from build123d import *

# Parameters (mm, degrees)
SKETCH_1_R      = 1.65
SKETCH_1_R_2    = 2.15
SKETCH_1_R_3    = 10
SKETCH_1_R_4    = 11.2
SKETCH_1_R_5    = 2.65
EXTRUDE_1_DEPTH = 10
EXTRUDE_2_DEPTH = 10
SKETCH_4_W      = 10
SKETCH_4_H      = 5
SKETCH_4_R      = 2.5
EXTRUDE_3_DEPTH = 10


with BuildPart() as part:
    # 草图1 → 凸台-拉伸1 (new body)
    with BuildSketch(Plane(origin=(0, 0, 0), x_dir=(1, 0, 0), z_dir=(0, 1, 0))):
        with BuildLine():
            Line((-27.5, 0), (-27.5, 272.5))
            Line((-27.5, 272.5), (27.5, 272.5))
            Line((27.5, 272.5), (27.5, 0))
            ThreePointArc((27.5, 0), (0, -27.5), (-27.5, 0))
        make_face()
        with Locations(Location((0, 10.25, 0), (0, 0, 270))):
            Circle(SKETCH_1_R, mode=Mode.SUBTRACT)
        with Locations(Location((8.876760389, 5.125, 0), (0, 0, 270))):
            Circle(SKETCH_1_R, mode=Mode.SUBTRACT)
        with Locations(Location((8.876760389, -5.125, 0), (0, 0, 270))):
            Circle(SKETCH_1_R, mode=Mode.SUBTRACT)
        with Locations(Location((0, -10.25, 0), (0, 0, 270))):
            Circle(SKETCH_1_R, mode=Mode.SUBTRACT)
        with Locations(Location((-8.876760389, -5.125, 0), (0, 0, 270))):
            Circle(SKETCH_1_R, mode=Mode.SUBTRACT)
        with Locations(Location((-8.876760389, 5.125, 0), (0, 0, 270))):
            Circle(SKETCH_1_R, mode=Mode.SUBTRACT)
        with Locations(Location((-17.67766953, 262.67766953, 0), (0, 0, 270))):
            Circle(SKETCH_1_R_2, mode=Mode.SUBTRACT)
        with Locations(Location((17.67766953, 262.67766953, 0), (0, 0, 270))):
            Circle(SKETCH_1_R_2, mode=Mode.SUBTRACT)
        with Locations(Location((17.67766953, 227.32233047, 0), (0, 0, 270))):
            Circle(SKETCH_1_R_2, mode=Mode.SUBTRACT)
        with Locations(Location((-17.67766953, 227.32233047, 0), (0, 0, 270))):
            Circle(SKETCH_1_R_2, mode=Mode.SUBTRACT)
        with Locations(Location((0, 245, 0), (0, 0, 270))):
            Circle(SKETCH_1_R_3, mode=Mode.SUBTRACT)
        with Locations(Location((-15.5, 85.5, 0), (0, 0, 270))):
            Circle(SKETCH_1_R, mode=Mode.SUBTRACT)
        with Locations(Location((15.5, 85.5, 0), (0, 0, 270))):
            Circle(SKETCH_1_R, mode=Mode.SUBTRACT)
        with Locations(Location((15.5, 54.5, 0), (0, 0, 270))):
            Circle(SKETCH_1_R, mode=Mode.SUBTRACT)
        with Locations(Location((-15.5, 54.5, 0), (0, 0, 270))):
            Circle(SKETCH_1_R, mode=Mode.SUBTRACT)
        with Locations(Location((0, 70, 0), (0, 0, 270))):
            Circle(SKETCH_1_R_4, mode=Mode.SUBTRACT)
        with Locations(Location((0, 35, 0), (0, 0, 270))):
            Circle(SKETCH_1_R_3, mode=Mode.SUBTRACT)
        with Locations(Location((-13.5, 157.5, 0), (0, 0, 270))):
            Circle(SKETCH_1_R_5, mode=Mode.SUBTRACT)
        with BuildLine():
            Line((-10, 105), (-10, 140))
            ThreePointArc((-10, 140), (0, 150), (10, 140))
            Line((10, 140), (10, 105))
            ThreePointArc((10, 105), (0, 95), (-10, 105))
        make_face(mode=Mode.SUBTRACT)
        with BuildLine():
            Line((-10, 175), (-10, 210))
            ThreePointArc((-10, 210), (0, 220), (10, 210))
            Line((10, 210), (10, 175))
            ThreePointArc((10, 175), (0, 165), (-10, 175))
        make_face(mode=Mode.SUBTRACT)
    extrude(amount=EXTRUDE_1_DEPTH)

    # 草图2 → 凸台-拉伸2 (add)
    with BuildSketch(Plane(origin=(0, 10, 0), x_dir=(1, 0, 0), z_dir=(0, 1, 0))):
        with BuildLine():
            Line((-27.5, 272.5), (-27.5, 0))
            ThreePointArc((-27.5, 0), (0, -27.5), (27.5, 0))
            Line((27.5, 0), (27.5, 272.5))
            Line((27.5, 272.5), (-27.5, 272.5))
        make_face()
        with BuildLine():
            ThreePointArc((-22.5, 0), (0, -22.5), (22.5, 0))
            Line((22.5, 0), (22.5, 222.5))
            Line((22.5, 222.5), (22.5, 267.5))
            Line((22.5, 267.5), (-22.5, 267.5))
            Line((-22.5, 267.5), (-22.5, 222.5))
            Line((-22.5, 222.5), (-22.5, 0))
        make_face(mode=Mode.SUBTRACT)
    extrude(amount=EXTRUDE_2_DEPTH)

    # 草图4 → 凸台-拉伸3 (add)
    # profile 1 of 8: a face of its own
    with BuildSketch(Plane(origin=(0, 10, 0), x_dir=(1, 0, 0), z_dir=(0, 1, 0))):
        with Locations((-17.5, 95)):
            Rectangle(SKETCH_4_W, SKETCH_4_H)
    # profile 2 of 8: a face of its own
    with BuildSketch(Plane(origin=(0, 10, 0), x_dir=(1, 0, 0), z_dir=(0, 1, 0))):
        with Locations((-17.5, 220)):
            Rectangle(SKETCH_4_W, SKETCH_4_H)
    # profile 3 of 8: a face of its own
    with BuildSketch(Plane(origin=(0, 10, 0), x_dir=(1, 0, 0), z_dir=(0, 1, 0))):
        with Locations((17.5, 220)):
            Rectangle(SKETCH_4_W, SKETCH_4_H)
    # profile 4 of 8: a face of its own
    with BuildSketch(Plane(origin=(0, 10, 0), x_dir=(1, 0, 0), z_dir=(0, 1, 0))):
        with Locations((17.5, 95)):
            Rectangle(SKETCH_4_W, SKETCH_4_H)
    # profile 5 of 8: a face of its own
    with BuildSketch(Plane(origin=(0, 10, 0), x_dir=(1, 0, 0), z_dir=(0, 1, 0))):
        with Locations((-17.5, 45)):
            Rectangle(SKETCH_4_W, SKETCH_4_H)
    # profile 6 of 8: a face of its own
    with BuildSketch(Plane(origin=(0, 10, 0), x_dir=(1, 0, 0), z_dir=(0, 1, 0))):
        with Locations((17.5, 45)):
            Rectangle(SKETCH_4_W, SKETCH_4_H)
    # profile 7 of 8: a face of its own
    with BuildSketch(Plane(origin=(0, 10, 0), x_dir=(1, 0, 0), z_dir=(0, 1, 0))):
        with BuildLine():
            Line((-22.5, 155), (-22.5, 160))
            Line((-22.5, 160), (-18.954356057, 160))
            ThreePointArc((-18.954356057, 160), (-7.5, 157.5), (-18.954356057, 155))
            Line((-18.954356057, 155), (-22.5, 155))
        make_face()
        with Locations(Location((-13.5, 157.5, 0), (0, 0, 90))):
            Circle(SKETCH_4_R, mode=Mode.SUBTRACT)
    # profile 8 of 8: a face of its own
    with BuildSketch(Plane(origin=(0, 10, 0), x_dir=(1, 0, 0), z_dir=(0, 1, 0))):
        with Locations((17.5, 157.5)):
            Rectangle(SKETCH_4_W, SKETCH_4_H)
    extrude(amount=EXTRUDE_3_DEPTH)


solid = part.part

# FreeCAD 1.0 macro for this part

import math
import FreeCAD as App
import Part
import Sketcher

V = App.Vector
Q = App.Units.Quantity


def add_polygon(sketch, points):
    """Adds a closed chain of lines whose ends are joined by coincident constraints."""
    first, n = sketch.GeometryCount, len(points)
    for a, b in zip(points, points[1:] + points[:1]):
        sketch.addGeometry(Part.LineSegment(App.Vector(*a, 0), App.Vector(*b, 0)), False)
    for i in range(n):
        sketch.addConstraint(Sketcher.Constraint("Coincident", first + i, 2, first + (i + 1) % n, 1))

doc = App.newDocument("Part")
body = doc.addObject("PartDesign::Body", "Body")

# Sketch on XZ plane
sketch1 = body.newObject("Sketcher::SketchObject", "Sketch")
sketch1.AttachmentSupport = (doc.getObject("XZ_Plane"), [""])
sketch1.MapMode = "FlatFace"
sketch1.addGeometry([
    Part.LineSegment(V(-27.5, -272.5, 0), V(-27.5, 0, 0)),  # 0
    Part.ArcOfCircle(Part.Circle(V(0, 0, 0), V(0, 0, 1), 27.5), math.radians(0), math.radians(180)),  # 1
    Part.LineSegment(V(27.5, 0, 0), V(27.5, -272.5, 0)),  # 2
    Part.LineSegment(V(27.5, -272.5, 0), V(-27.5, -272.5, 0)),  # 3
    Part.Circle(V(15.5, -54.5, 0), V(0, 0, 1), 1.6),  # 4
    Part.Circle(V(8.9, 5.1, 0), V(0, 0, 1), 1.6),  # 5
    Part.Circle(V(8.9, -5.1, 0), V(0, 0, 1), 1.6),  # 6
    Part.Circle(V(15.5, -85.5, 0), V(0, 0, 1), 1.6),  # 7
    Part.Circle(V(0, 10.2, 0), V(0, 0, 1), 1.6),  # 8
    Part.Circle(V(0, -10.2, 0), V(0, 0, 1), 1.6),  # 9
    Part.Circle(V(-8.9, 5.1, 0), V(0, 0, 1), 1.6),  # 10
    Part.Circle(V(-8.9, -5.1, 0), V(0, 0, 1), 1.6),  # 11
    Part.Circle(V(0, -35, 0), V(0, 0, 1), 10),  # 12
    Part.Circle(V(-15.5, -54.5, 0), V(0, 0, 1), 1.6),  # 13
    Part.Circle(V(0, -70, 0), V(0, 0, 1), 11.2),  # 14
    Part.LineSegment(V(-10, -105, 0), V(-10, -140, 0)),  # 15
    Part.ArcOfCircle(Part.Circle(V(0, -140, 0), V(0, 0, 1), 10), math.radians(180), math.radians(360)),  # 16
    Part.LineSegment(V(10, -140, 0), V(10, -105, 0)),  # 17
    Part.ArcOfCircle(Part.Circle(V(0, -105, 0), V(0, 0, 1), 10), math.radians(0), math.radians(180)),  # 18
    Part.Circle(V(-15.5, -85.5, 0), V(0, 0, 1), 1.6),  # 19
    Part.Circle(V(17.7, -227.3, 0), V(0, 0, 1), 2.1),  # 20
    Part.Circle(V(17.7, -262.7, 0), V(0, 0, 1), 2.1),  # 21
    Part.LineSegment(V(-10, -175, 0), V(-10, -210, 0)),  # 22
    Part.ArcOfCircle(Part.Circle(V(0, -210, 0), V(0, 0, 1), 10), math.radians(180), math.radians(360)),  # 23
    Part.LineSegment(V(10, -210, 0), V(10, -175, 0)),  # 24
    Part.ArcOfCircle(Part.Circle(V(0, -175, 0), V(0, 0, 1), 10), math.radians(0), math.radians(180)),  # 25
    Part.Circle(V(-13.5, -157.5, 0), V(0, 0, 1), 2.6),  # 26
    Part.Circle(V(0, -245, 0), V(0, 0, 1), 10),  # 27
    Part.Circle(V(-17.7, -227.3, 0), V(0, 0, 1), 2.1),  # 28
    Part.Circle(V(-17.7, -262.7, 0), V(0, 0, 1), 2.1),  # 29
], False)
sketch1.addConstraint([
    Sketcher.Constraint("Tangent", 0, 2, 1, 2),
    Sketcher.Constraint("Tangent", 1, 1, 2, 1),
    Sketcher.Constraint("Coincident", 2, 2, 3, 1),
    Sketcher.Constraint("Coincident", 3, 2, 0, 1),
    Sketcher.Constraint("Tangent", 15, 2, 16, 1),
    Sketcher.Constraint("Tangent", 16, 2, 17, 1),
    Sketcher.Constraint("Tangent", 17, 2, 18, 1),
    Sketcher.Constraint("Tangent", 18, 2, 15, 1),
    Sketcher.Constraint("Tangent", 22, 2, 23, 1),
    Sketcher.Constraint("Tangent", 23, 2, 24, 1),
    Sketcher.Constraint("Tangent", 24, 2, 25, 1),
    Sketcher.Constraint("Tangent", 25, 2, 22, 1),
    Sketcher.Constraint("Vertical", 0),
    Sketcher.Constraint("Vertical", 2),
    Sketcher.Constraint("Horizontal", 3),
    Sketcher.Constraint("Vertical", 15),
    Sketcher.Constraint("Vertical", 17),
    Sketcher.Constraint("Vertical", 22),
    Sketcher.Constraint("Vertical", 24),
    Sketcher.Constraint("Coincident", 1, 3, -1, 1),
    Sketcher.Constraint("Equal", 4, 5),
    Sketcher.Constraint("Equal", 5, 6),
    Sketcher.Constraint("Equal", 6, 7),
    Sketcher.Constraint("Equal", 7, 8),
    Sketcher.Constraint("Equal", 8, 9),
    Sketcher.Constraint("Equal", 9, 10),
    Sketcher.Constraint("Equal", 10, 11),
    Sketcher.Constraint("Equal", 11, 13),
    Sketcher.Constraint("Equal", 12, 16),
    Sketcher.Constraint("Equal", 13, 19),
    Sketcher.Constraint("Equal", 20, 21),
    Sketcher.Constraint("Equal", 18, 23),
    Sketcher.Constraint("Equal", 25, 27),
    Sketcher.Constraint("Equal", 21, 28),
    Sketcher.Constraint("Equal", 28, 29),
    Sketcher.Constraint("Symmetric", 8, 3, 9, 3, -1, 1),
    Sketcher.Constraint("Symmetric", 6, 3, 10, 3, -1, 1),
    Sketcher.Constraint("Symmetric", 5, 3, 11, 3, -1, 1),
    Sketcher.Constraint("Symmetric", 5, 3, 10, 3, -2),
    Sketcher.Constraint("Symmetric", 4, 3, 13, 3, -2),
    Sketcher.Constraint("Symmetric", 7, 3, 19, 3, -2),
    Sketcher.Constraint("Symmetric", 20, 3, 28, 3, -2),
    Sketcher.Constraint("Symmetric", 21, 3, 29, 3, -2),
    Sketcher.Constraint("PointOnObject", 8, 3, -2),
    Sketcher.Constraint("PointOnObject", 12, 3, -2),
    Sketcher.Constraint("PointOnObject", 14, 3, -2),
    Sketcher.Constraint("PointOnObject", 16, 3, -2),
    Sketcher.Constraint("PointOnObject", 23, 3, -2),
    Sketcher.Constraint("PointOnObject", 27, 3, -2),
    Sketcher.Constraint("Vertical", 4, 3, 7, 3),
    Sketcher.Constraint("Vertical", 20, 3, 21, 3),
    Sketcher.Constraint("Equal", 17, 22),
    Sketcher.Constraint("Diameter", 12, Q("20 mm")),
    Sketcher.Constraint("Diameter", 4, Q("3.3 mm")),
    Sketcher.Constraint("Diameter", 14, Q("22.4 mm")),
    Sketcher.Constraint("Diameter", 20, Q("4.3 mm")),
    Sketcher.Constraint("Diameter", 26, Q("5.3 mm")),
    Sketcher.Constraint("Radius", 1, Q("27.5 mm")),
    Sketcher.Constraint("DistanceY", 15, 2, 15, 1, Q("35 mm")),
    Sketcher.Constraint("DistanceY", 0, 1, 0, 2, Q("272.5 mm")),
    Sketcher.Constraint("DistanceY", 12, 3, -1, 1, Q("35 mm")),
    Sketcher.Constraint("DistanceY", 14, 3, -1, 1, Q("70 mm")),
    Sketcher.Constraint("DistanceY", 16, 3, -1, 1, Q("140 mm")),
    Sketcher.Constraint("DistanceY", 23, 3, -1, 1, Q("210 mm")),
    Sketcher.Constraint("DistanceY", 27, 3, -1, 1, Q("245 mm")),
    Sketcher.Constraint("DistanceY", 7, 3, 4, 3, Q("31 mm")),
    Sketcher.Constraint("DistanceX", 13, 3, 4, 3, Q("31 mm")),
    Sketcher.Constraint("DistanceX", 19, 3, 26, 3, Q("2 mm")),
    Sketcher.Constraint("DistanceY", 26, 3, 19, 3, Q("72 mm")),
    Sketcher.Constraint("DistanceY", 4, 3, -1, 1, Q("54.5 mm")),
    Sketcher.Constraint("DistanceY", 9, 3, 8, 3, Q("20.5 mm")),
    Sketcher.Constraint("DistanceY", 6, 3, 5, 3, Q("10.25 mm")),
    Sketcher.Constraint("DistanceX", -1, 1, 5, 3, Q("8.87676 mm")),
    Sketcher.Constraint("DistanceX", -1, 1, 20, 3, Q("17.67767 mm")),
    Sketcher.Constraint("DistanceY", 20, 3, -1, 1, Q("227.32233 mm")),
    Sketcher.Constraint("DistanceY", 21, 3, -1, 1, Q("262.67767 mm")),
])
pad1 = body.newObject("PartDesign::Pad", "Pad")
pad1.Profile = sketch1
pad1.Length = 10
pad1.Reversed = True

# Sketch on XZ plane
sketch2 = body.newObject("Sketcher::SketchObject", "Sketch001")
sketch2.AttachmentSupport = (doc.getObject("XZ_Plane"), [""])
sketch2.MapMode = "FlatFace"
sketch2.AttachmentOffset = App.Placement(V(0, 0, -10), App.Rotation())
sketch2.addGeometry([
    Part.LineSegment(V(-28, -272, 0), V(-28, 0, 0)),  # 0
    Part.ArcOfCircle(Part.Circle(V(0, 0, 0), V(0, 0, 1), 28), math.radians(0), math.radians(180)),  # 1
    Part.LineSegment(V(28, 0, 0), V(28, -272, 0)),  # 2
    Part.LineSegment(V(28, -272, 0), V(-28, -272, 0)),  # 3
    Part.ArcOfCircle(Part.Circle(V(0, 0, 0), V(0, 0, 1), 22), math.radians(0), math.radians(180)),  # 4
    Part.LineSegment(V(-22, 0, 0), V(-22, -268, 0)),  # 5
    Part.LineSegment(V(-22, -268, 0), V(22, -268, 0)),  # 6
    Part.LineSegment(V(22, -268, 0), V(22, 0, 0)),  # 7
], False)
sketch2.addConstraint([
    Sketcher.Constraint("Tangent", 0, 2, 1, 2),
    Sketcher.Constraint("Tangent", 1, 1, 2, 1),
    Sketcher.Constraint("Coincident", 2, 2, 3, 1),
    Sketcher.Constraint("Coincident", 3, 2, 0, 1),
    Sketcher.Constraint("Tangent", 4, 2, 5, 1),
    Sketcher.Constraint("Coincident", 5, 2, 6, 1),
    Sketcher.Constraint("Coincident", 6, 2, 7, 1),
    Sketcher.Constraint("Tangent", 7, 2, 4, 1),
    Sketcher.Constraint("Vertical", 0),
    Sketcher.Constraint("Vertical", 2),
    Sketcher.Constraint("Horizontal", 3),
    Sketcher.Constraint("Vertical", 5),
    Sketcher.Constraint("Horizontal", 6),
    Sketcher.Constraint("Vertical", 7),
    Sketcher.Constraint("Coincident", 1, 3, -1, 1),
    Sketcher.Constraint("Coincident", 4, 3, -1, 1),
    Sketcher.Constraint("Radius", 1, Q("27.5 mm")),
    Sketcher.Constraint("Radius", 4, Q("22.5 mm")),
    Sketcher.Constraint("DistanceY", 0, 1, 0, 2, Q("272.5 mm")),
    Sketcher.Constraint("DistanceY", 5, 2, 5, 1, Q("267.5 mm")),
])
pad2 = body.newObject("PartDesign::Pad", "Pad001")
pad2.Profile = sketch2
pad2.Length = 10
pad2.Reversed = True

# Sketch on XZ plane
sketch3 = body.newObject("Sketcher::SketchObject", "Sketch002")
sketch3.AttachmentSupport = (doc.getObject("XZ_Plane"), [""])
sketch3.MapMode = "FlatFace"
sketch3.AttachmentOffset = App.Placement(V(0, 0, -10), App.Rotation())
add_polygon(sketch3, [(-22.5, -97.5), (-22.5, -92.5), (-12.5, -92.5), (-12.5, -97.5)])  # lines 0-3
add_polygon(sketch3, [(-22.5, -222.5), (-22.5, -217.5), (-12.5, -217.5), (-12.5, -222.5)])  # lines 4-7
add_polygon(sketch3, [(12.5, -222.5), (12.5, -217.5), (22.5, -217.5), (22.5, -222.5)])  # lines 8-11
add_polygon(sketch3, [(12.5, -97.5), (12.5, -92.5), (22.5, -92.5), (22.5, -97.5)])  # lines 12-15
add_polygon(sketch3, [(-22.5, -47.5), (-22.5, -42.5), (-12.5, -42.5), (-12.5, -47.5)])  # lines 16-19
add_polygon(sketch3, [(12.5, -47.5), (12.5, -42.5), (22.5, -42.5), (22.5, -47.5)])  # lines 20-23
sketch3.addGeometry(Part.LineSegment(V(-22.5, -160, 0), V(-22.5, -155, 0)), False)  # 24
sketch3.addGeometry(Part.LineSegment(V(-22.5, -155, 0), V(-19, -155, 0)), False)  # 25
sketch3.addGeometry(Part.ArcOfCircle(Part.Circle(V(-13.5, -157.5, 0), V(0, 0, 1), 6), math.radians(-155), math.radians(155)), False)  # 26
sketch3.addGeometry(Part.LineSegment(V(-19, -160, 0), V(-22.5, -160, 0)), False)  # 27
sketch3.addGeometry(Part.Circle(V(-13.5, -157.5, 0), V(0, 0, 1), 2.5), False)  # 28
add_polygon(sketch3, [(12.5, -160), (12.5, -155), (22.5, -155), (22.5, -160)])  # lines 29-32
sketch3.addConstraint([
    Sketcher.Constraint("Coincident", 24, 2, 25, 1),
    Sketcher.Constraint("Coincident", 25, 2, 26, 2),
    Sketcher.Constraint("Coincident", 26, 1, 27, 1),
    Sketcher.Constraint("Coincident", 27, 2, 24, 1),
    Sketcher.Constraint("Vertical", 0),
    Sketcher.Constraint("Horizontal", 1),
    Sketcher.Constraint("Vertical", 2),
    Sketcher.Constraint("Horizontal", 3),
    Sketcher.Constraint("Vertical", 4),
    Sketcher.Constraint("Horizontal", 5),
    Sketcher.Constraint("Vertical", 6),
    Sketcher.Constraint("Horizontal", 7),
    Sketcher.Constraint("Vertical", 8),
    Sketcher.Constraint("Horizontal", 9),
    Sketcher.Constraint("Vertical", 10),
    Sketcher.Constraint("Horizontal", 11),
    Sketcher.Constraint("Vertical", 12),
    Sketcher.Constraint("Horizontal", 13),
    Sketcher.Constraint("Vertical", 14),
    Sketcher.Constraint("Horizontal", 15),
    Sketcher.Constraint("Vertical", 16),
    Sketcher.Constraint("Horizontal", 17),
    Sketcher.Constraint("Vertical", 18),
    Sketcher.Constraint("Horizontal", 19),
    Sketcher.Constraint("Vertical", 20),
    Sketcher.Constraint("Horizontal", 21),
    Sketcher.Constraint("Vertical", 22),
    Sketcher.Constraint("Horizontal", 23),
    Sketcher.Constraint("Vertical", 24),
    Sketcher.Constraint("Horizontal", 25),
    Sketcher.Constraint("Horizontal", 27),
    Sketcher.Constraint("Vertical", 29),
    Sketcher.Constraint("Horizontal", 30),
    Sketcher.Constraint("Vertical", 31),
    Sketcher.Constraint("Horizontal", 32),
    Sketcher.Constraint("Coincident", 28, 3, 26, 3),
    Sketcher.Constraint("Symmetric", 5, 2, 8, 2, -2),
    Sketcher.Constraint("Symmetric", 7, 2, 10, 2, -2),
    Sketcher.Constraint("Symmetric", 1, 2, 12, 2, -2),
    Sketcher.Constraint("Symmetric", 3, 2, 14, 2, -2),
    Sketcher.Constraint("Symmetric", 17, 2, 20, 2, -2),
    Sketcher.Constraint("Symmetric", 19, 2, 22, 2, -2),
    Sketcher.Constraint("Symmetric", 24, 2, 30, 2, -2),
    Sketcher.Constraint("Horizontal", 27, 2, 31, 2),
    Sketcher.Constraint("Vertical", 3, 2, 4, 2),
    Sketcher.Constraint("Vertical", 2, 2, 5, 2),
    Sketcher.Constraint("Vertical", 7, 2, 16, 2),
    Sketcher.Constraint("Vertical", 6, 2, 17, 2),
    Sketcher.Constraint("Vertical", 19, 2, 24, 2),
    Sketcher.Constraint("Vertical", 25, 2, 26, 1),
    Sketcher.Constraint("Vertical", 23, 2, 29, 2),
    Sketcher.Constraint("Equal", 2, 4),
    Sketcher.Constraint("Equal", 14, 16),
    Sketcher.Constraint("Equal", 22, 24),
    Sketcher.Constraint("Diameter", 28, Q("5 mm")),
    Sketcher.Constraint("Radius", 26, Q("6 mm")),
    Sketcher.Constraint("DistanceX", 1, 1, 1, 2, Q("10 mm")),
    Sketcher.Constraint("DistanceY", 0, 1, 0, 2, Q("5 mm")),
    Sketcher.Constraint("DistanceY", 24, 2, -1, 1, Q("155 mm")),
    Sketcher.Constraint("DistanceX", 0, 2, 26, 3, Q("9 mm")),
    Sketcher.Constraint("DistanceY", 26, 3, 0, 2, Q("65 mm")),
    Sketcher.Constraint("DistanceY", 4, 2, 26, 3, Q("60 mm")),
    Sketcher.Constraint("DistanceX", 5, 2, 8, 2, Q("25 mm")),
    Sketcher.Constraint("DistanceY", 0, 2, 16, 2, Q("50 mm")),
])
pad3 = body.newObject("PartDesign::Pad", "Pad002")
pad3.Profile = sketch3
pad3.Length = 10
pad3.Reversed = True

doc.recompute()
